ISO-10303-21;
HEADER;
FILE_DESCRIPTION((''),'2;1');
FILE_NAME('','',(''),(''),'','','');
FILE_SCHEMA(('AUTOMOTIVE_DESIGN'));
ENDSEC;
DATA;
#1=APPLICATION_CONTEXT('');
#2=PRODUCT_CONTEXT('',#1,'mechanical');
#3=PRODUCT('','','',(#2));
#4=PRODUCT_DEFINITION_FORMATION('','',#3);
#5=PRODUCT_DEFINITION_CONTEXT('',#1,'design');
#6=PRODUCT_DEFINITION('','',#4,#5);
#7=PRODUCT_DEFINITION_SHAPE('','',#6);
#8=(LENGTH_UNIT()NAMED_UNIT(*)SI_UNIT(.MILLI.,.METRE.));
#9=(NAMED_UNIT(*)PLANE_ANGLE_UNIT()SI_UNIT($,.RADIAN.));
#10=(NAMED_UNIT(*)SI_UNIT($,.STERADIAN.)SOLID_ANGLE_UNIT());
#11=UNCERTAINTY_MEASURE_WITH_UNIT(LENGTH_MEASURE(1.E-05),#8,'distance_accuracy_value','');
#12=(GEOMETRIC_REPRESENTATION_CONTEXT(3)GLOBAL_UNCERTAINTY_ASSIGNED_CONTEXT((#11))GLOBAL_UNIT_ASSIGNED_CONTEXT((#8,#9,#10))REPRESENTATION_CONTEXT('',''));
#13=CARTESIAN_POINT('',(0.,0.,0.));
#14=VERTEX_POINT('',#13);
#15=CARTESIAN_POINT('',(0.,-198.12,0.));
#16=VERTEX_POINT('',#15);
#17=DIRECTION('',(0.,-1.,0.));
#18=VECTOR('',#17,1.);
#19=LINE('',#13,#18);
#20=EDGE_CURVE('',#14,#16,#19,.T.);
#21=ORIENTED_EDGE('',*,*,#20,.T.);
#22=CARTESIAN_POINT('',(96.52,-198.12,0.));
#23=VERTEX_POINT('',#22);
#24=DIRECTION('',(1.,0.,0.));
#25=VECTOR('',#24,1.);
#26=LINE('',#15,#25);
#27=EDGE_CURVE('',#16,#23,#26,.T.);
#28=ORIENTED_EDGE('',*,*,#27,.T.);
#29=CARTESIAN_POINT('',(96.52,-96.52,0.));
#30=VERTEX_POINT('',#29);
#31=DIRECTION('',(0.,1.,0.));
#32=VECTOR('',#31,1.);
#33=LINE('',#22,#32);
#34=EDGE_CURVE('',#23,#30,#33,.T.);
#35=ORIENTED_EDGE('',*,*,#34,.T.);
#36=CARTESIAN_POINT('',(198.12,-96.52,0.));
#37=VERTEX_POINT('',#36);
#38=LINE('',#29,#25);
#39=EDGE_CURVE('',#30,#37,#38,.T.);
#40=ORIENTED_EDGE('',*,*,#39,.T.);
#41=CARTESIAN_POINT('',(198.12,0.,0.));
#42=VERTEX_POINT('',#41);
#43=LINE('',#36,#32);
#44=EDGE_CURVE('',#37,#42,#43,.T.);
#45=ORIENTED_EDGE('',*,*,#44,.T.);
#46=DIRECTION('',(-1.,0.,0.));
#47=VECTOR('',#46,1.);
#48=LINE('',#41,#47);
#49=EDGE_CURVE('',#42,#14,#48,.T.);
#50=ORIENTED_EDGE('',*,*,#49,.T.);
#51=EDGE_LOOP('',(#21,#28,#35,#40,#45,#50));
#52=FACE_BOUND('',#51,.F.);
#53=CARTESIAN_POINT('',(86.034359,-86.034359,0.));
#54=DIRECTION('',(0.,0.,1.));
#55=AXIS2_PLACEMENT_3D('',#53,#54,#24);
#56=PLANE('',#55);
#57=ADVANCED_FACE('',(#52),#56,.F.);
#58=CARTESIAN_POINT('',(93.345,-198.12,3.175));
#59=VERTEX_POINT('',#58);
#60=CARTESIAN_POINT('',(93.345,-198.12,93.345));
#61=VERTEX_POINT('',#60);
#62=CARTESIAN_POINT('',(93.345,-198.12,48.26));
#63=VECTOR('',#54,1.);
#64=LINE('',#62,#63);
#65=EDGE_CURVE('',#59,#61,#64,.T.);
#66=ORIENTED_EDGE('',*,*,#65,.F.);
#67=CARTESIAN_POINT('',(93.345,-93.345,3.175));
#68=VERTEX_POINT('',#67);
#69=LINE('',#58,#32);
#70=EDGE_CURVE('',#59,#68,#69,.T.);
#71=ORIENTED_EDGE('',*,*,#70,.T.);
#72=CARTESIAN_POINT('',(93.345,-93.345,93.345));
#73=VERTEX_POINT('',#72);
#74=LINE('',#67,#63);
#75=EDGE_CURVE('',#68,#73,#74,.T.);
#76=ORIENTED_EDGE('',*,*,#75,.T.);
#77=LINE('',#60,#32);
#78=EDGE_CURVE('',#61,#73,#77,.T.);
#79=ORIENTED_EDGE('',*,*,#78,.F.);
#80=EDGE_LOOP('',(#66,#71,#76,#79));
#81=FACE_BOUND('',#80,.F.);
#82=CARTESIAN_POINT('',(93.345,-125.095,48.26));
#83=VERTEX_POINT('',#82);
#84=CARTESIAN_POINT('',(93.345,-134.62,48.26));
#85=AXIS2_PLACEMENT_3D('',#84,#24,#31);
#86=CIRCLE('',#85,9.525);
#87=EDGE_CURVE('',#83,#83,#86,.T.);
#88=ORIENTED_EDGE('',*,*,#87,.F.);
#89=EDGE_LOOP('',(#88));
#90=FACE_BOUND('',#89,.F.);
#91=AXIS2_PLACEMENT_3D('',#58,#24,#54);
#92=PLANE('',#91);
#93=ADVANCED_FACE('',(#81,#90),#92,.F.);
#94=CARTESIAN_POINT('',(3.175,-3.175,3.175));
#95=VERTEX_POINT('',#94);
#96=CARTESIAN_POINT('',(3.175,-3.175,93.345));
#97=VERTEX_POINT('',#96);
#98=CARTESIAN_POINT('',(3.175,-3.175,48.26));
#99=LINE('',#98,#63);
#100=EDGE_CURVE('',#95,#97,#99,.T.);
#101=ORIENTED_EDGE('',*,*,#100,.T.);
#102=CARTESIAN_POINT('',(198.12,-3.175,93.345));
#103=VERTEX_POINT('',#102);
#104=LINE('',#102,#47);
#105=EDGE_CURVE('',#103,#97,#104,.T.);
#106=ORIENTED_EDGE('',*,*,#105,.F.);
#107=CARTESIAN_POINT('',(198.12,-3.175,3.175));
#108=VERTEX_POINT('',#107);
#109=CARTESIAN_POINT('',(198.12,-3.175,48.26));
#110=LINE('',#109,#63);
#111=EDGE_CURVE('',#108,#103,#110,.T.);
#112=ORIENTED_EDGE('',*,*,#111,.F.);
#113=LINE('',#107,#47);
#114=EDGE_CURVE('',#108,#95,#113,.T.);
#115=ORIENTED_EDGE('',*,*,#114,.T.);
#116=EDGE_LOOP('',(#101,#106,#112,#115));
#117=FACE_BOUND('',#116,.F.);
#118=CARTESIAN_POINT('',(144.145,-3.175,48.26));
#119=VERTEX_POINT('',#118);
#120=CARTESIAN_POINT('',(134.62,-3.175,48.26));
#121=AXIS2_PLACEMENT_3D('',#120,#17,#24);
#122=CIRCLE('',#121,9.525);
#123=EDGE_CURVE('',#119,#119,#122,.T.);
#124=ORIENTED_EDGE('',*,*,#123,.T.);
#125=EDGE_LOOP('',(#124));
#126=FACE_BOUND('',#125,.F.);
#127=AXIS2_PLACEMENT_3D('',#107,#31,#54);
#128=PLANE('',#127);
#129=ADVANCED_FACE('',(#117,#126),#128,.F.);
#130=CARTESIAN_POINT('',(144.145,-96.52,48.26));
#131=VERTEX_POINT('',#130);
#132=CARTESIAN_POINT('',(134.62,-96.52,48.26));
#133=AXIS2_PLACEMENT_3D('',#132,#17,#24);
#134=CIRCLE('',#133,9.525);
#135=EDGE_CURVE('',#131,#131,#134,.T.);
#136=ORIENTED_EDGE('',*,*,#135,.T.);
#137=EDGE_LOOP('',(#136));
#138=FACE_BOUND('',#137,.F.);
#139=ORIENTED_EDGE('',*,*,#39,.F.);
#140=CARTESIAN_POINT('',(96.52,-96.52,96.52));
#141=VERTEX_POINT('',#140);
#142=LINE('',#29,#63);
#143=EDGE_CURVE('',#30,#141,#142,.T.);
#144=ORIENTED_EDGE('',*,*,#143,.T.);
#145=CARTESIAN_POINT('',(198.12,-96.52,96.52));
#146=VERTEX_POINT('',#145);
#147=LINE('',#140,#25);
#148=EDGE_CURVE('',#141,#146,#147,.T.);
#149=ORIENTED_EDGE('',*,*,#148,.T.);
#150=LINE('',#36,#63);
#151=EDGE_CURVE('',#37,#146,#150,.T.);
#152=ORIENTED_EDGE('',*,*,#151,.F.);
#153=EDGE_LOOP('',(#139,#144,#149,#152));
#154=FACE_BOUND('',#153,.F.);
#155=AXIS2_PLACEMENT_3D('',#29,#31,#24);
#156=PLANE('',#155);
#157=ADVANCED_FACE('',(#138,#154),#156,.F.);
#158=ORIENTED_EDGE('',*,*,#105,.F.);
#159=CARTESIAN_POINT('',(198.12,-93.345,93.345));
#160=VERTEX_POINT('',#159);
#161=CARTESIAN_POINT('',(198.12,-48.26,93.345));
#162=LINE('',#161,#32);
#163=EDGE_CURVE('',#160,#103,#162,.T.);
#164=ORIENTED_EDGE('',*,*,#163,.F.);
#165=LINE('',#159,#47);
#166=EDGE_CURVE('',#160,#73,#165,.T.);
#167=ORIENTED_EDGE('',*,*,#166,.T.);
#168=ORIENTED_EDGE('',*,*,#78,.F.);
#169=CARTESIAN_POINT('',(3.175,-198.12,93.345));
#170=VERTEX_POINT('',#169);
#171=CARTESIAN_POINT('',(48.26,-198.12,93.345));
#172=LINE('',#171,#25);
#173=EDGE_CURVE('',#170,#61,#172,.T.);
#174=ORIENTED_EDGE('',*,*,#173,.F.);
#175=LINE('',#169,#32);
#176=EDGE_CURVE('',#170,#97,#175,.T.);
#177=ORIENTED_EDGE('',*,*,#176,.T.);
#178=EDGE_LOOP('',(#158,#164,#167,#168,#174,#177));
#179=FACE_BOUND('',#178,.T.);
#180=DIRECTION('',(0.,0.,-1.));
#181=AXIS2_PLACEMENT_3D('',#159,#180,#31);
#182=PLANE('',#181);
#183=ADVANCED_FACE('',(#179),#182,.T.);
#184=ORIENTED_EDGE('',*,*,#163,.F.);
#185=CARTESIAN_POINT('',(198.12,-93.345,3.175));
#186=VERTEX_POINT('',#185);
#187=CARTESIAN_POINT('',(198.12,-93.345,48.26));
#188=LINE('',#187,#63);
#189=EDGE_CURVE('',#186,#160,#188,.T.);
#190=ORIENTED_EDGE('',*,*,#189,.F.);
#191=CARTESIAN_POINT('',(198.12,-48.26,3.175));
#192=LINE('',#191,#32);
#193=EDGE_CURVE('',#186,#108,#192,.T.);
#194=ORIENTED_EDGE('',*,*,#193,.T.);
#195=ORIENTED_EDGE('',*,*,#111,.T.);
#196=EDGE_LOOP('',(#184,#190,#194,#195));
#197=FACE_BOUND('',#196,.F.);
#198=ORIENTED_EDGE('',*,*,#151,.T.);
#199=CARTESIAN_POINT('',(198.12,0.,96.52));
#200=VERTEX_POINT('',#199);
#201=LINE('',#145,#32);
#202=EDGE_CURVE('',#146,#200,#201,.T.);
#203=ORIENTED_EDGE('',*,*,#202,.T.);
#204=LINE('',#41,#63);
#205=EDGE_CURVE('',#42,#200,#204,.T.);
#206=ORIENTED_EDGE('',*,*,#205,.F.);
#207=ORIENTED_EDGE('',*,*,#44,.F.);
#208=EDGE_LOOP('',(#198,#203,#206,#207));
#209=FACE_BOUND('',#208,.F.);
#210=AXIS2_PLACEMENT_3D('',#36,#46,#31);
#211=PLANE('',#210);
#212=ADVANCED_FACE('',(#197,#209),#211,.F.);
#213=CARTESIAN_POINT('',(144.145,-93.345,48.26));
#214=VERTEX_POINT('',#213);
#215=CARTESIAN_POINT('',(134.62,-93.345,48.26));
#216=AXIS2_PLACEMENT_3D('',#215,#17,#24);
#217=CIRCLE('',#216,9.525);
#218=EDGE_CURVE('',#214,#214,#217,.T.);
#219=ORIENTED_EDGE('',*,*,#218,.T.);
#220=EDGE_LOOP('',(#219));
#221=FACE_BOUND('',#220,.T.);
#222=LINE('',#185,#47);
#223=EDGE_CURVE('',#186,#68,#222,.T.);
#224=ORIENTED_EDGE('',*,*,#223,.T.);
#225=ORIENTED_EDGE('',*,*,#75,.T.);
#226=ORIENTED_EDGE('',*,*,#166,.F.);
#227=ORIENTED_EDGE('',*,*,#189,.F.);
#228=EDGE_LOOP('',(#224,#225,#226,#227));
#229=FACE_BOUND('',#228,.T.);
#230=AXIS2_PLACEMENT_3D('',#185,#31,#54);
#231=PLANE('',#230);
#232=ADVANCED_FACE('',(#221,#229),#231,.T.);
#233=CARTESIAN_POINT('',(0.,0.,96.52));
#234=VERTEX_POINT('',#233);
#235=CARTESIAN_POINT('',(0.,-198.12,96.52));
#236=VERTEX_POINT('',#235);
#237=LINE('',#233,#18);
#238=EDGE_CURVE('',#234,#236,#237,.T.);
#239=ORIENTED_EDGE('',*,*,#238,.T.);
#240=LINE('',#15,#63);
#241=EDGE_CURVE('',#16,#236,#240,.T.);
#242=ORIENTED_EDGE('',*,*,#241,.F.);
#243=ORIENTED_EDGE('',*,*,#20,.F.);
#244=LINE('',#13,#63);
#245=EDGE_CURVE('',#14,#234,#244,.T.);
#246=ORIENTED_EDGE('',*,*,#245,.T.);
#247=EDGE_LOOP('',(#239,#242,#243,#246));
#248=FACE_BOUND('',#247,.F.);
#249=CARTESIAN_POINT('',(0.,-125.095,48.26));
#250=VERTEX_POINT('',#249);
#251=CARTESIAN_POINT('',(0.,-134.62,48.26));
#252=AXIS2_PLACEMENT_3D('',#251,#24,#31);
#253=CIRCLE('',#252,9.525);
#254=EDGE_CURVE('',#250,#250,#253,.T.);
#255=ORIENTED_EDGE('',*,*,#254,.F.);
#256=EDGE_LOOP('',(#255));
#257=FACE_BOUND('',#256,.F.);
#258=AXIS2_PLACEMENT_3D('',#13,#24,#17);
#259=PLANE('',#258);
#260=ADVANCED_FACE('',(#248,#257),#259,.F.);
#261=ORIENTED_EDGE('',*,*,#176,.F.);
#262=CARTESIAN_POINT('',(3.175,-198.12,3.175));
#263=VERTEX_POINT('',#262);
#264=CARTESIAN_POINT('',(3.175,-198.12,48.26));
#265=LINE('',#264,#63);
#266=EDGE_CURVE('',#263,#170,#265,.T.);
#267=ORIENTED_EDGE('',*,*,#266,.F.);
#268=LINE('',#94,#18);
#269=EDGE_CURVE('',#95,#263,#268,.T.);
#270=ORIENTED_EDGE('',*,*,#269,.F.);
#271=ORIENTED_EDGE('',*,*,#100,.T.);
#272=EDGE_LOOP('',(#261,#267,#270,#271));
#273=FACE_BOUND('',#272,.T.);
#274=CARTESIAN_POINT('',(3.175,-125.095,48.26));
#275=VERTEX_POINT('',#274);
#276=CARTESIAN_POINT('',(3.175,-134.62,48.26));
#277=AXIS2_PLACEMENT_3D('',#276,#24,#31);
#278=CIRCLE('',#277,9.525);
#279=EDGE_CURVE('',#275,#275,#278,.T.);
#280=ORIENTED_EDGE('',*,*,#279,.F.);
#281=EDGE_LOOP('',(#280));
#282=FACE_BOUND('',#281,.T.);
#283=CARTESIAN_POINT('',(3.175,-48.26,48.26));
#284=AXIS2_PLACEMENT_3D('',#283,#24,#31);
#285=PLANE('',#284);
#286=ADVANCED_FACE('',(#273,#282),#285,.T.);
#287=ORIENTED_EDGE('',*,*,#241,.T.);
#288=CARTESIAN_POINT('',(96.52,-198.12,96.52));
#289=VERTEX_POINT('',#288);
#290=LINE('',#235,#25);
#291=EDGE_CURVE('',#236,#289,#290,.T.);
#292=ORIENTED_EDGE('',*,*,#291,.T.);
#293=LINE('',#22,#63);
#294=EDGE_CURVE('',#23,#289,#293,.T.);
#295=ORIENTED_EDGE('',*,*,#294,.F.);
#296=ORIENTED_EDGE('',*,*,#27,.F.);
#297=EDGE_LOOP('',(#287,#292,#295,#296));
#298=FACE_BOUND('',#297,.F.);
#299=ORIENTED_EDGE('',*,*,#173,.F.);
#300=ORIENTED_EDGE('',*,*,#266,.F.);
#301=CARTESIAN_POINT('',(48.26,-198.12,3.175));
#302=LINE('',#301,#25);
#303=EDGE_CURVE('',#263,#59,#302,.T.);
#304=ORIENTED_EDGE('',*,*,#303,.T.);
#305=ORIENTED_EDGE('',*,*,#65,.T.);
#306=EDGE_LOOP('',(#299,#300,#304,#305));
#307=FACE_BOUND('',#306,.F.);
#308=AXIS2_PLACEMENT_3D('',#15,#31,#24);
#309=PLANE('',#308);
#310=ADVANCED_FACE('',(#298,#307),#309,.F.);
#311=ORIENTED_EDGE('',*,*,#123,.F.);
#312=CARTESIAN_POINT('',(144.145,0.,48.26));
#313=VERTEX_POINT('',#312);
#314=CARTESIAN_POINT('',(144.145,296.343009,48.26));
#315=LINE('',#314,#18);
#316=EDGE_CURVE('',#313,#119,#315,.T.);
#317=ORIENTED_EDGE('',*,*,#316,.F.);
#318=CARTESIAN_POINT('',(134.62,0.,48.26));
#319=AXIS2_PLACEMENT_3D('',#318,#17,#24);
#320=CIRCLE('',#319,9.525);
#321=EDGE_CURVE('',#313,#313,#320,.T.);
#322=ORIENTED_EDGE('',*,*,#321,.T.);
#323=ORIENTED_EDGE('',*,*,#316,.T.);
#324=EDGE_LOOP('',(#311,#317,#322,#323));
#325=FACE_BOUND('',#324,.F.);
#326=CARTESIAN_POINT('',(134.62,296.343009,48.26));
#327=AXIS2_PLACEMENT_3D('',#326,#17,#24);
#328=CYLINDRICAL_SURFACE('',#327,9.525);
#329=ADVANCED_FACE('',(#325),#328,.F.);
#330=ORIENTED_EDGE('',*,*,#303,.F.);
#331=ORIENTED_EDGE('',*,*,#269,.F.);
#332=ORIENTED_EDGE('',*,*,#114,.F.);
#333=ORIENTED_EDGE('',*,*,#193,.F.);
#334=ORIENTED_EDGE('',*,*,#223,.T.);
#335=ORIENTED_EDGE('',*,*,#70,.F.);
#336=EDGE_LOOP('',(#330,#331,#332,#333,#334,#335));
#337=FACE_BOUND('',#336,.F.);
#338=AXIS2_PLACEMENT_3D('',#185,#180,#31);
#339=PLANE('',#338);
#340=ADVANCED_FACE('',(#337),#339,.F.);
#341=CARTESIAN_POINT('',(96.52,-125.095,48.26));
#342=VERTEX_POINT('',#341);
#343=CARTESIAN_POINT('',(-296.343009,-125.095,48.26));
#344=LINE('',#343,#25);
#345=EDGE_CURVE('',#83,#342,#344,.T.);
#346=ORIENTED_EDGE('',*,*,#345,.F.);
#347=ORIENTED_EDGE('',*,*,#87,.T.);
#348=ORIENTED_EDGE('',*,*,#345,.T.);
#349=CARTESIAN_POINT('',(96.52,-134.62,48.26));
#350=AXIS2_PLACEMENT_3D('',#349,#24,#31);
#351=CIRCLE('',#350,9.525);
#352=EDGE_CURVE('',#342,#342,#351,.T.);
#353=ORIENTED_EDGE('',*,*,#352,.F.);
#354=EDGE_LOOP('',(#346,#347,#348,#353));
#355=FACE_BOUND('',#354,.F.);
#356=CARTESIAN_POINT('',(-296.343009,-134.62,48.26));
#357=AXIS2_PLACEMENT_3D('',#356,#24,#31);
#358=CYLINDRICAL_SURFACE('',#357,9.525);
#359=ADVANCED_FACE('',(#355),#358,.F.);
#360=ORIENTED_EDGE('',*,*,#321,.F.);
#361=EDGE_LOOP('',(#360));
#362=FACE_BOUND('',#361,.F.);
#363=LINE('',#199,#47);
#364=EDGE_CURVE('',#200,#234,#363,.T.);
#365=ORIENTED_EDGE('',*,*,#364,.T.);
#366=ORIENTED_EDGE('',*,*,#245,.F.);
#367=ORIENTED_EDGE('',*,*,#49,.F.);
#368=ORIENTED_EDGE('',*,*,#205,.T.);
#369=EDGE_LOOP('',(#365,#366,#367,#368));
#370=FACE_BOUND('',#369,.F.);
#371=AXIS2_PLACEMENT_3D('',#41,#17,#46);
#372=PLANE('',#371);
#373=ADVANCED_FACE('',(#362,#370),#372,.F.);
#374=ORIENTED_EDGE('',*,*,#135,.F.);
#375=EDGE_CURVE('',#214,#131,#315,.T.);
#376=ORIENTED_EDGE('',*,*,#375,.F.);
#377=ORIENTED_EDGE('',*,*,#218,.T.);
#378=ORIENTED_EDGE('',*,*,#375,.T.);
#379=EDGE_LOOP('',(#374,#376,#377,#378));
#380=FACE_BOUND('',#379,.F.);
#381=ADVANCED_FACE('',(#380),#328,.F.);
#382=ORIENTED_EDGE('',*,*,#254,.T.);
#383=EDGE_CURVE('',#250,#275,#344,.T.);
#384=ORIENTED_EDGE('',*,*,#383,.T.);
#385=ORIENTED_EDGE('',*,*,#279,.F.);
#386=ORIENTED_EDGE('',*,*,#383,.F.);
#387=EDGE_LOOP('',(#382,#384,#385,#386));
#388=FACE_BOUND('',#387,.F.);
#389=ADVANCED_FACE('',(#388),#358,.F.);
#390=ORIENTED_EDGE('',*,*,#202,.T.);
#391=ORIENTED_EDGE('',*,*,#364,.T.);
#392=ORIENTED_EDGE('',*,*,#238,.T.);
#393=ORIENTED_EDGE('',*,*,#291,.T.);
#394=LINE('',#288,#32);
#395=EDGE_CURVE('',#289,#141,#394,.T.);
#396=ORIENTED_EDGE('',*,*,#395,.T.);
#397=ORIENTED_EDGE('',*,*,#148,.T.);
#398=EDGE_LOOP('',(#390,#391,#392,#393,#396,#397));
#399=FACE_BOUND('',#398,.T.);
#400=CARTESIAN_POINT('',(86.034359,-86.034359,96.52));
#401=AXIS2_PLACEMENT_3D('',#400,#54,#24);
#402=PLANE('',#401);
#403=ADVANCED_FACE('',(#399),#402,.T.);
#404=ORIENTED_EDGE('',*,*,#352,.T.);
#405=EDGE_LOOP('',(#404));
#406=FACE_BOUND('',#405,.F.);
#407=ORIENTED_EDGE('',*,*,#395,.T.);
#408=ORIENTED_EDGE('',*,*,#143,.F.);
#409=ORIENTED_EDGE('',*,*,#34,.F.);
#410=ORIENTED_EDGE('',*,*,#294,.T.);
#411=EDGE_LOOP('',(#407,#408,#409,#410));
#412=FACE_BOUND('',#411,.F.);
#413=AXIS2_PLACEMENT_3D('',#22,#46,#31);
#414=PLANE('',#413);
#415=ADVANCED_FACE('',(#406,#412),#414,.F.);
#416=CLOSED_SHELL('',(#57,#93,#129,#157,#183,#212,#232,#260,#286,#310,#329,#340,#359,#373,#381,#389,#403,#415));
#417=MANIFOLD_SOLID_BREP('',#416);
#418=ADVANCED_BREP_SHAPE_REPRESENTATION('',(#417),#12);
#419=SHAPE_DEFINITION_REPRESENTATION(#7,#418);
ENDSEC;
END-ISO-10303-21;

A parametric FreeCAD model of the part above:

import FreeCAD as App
import Part
import Sketcher

V = App.Vector
Q = App.Units.Quantity

doc = App.newDocument("Part")
body = doc.addObject("PartDesign::Body", "Body")

sketch1 = body.newObject("Sketcher::SketchObject", "Sketch")
sketch1.AttachmentSupport = (doc.getObject("XY_Plane"), [""])
sketch1.MapMode = "FlatFace"
sketch1.addGeometry(Part.LineSegment(V(198, 0, 0), V(0, 0, 0)), False)
sketch1.addGeometry(Part.LineSegment(V(0, 0, 0), V(0, -198, 0)), False)
sketch1.addGeometry(Part.LineSegment(V(0, -198, 0), V(97, -198, 0)), False)
sketch1.addGeometry(Part.LineSegment(V(97, -198, 0), V(97, -97, 0)), False)
sketch1.addGeometry(Part.LineSegment(V(97, -97, 0), V(198, -97, 0)), False)
sketch1.addGeometry(Part.LineSegment(V(198, -97, 0), V(198, 0, 0)), False)
sketch1.addConstraint(Sketcher.Constraint("Coincident", 0, 2, 1, 1))
sketch1.addConstraint(Sketcher.Constraint("Coincident", 1, 2, 2, 1))
sketch1.addConstraint(Sketcher.Constraint("Coincident", 2, 2, 3, 1))
sketch1.addConstraint(Sketcher.Constraint("Coincident", 3, 2, 4, 1))
sketch1.addConstraint(Sketcher.Constraint("Coincident", 4, 2, 5, 1))
sketch1.addConstraint(Sketcher.Constraint("Coincident", 5, 2, 0, 1))
sketch1.addConstraint(Sketcher.Constraint("Horizontal", 0))
sketch1.addConstraint(Sketcher.Constraint("Vertical", 1))
sketch1.addConstraint(Sketcher.Constraint("Horizontal", 2))
sketch1.addConstraint(Sketcher.Constraint("Vertical", 3))
sketch1.addConstraint(Sketcher.Constraint("Horizontal", 4))
sketch1.addConstraint(Sketcher.Constraint("Vertical", 5))
sketch1.addConstraint(Sketcher.Constraint("Coincident", 0, 2, -1, 1))
sketch1.addConstraint(Sketcher.Constraint("Equal", 0, 1))
sketch1.addConstraint(Sketcher.Constraint("Equal", 4, 3))
sketch1.addConstraint(Sketcher.Constraint("DistanceX", 4, 1, 4, 2, Q("4 in")))
sketch1.addConstraint(Sketcher.Constraint("DistanceX", 0, 2, 0, 1, Q("7.8 in")))
pad1 = body.newObject("PartDesign::Pad", "Pad")
pad1.Profile = sketch1
pad1.Length = Q("3.8 in")

sketch2 = body.newObject("Sketcher::SketchObject", "Sketch001")
sketch2.AttachmentSupport = (doc.getObject("XZ_Plane"), [""])
sketch2.MapMode = "FlatFace"
sketch2.AttachmentOffset = App.Placement(V(0, 0, 7.8 * 25.4), App.Rotation())
sketch2.addGeometry(Part.LineSegment(V(3, 93, 0), V(3, 3, 0)), False)
sketch2.addGeometry(Part.LineSegment(V(3, 3, 0), V(93, 3, 0)), False)
sketch2.addGeometry(Part.LineSegment(V(93, 3, 0), V(93, 93, 0)), False)
sketch2.addGeometry(Part.LineSegment(V(93, 93, 0), V(3, 93, 0)), False)
sketch2.addConstraint(Sketcher.Constraint("Coincident", 0, 2, 1, 1))
sketch2.addConstraint(Sketcher.Constraint("Coincident", 1, 2, 2, 1))
sketch2.addConstraint(Sketcher.Constraint("Coincident", 2, 2, 3, 1))
sketch2.addConstraint(Sketcher.Constraint("Coincident", 3, 2, 0, 1))
sketch2.addConstraint(Sketcher.Constraint("Vertical", 0))
sketch2.addConstraint(Sketcher.Constraint("Horizontal", 1))
sketch2.addConstraint(Sketcher.Constraint("Vertical", 2))
sketch2.addConstraint(Sketcher.Constraint("Horizontal", 3))
sketch2.addConstraint(Sketcher.Constraint("Equal", 3, 0))
sketch2.addConstraint(Sketcher.Constraint("DistanceX", 1, 1, 1, 2, Q("3.55 in")))
sketch2.addConstraint(Sketcher.Constraint("DistanceX", -1, 1, 0, 2, Q("0.125 in")))
sketch2.addConstraint(Sketcher.Constraint("DistanceY", -1, 1, 0, 2, Q("0.125 in")))
pocket1 = body.newObject("PartDesign::Pocket", "Pocket")
pocket1.Profile = sketch2
pocket1.Length = Q("4.2 in")

sketch3 = body.newObject("Sketcher::SketchObject", "Sketch002")
sketch3.AttachmentSupport = (doc.getObject("YZ_Plane"), [""])
sketch3.MapMode = "FlatFace"
sketch3.AttachmentOffset = App.Placement(V(0, 0, 7.8 * 25.4), App.Rotation())
sketch3.addGeometry(Part.LineSegment(V(-93, 93, 0), V(-93, 3, 0)), False)
sketch3.addGeometry(Part.LineSegment(V(-93, 3, 0), V(-3, 3, 0)), False)
sketch3.addGeometry(Part.LineSegment(V(-3, 3, 0), V(-3, 93, 0)), False)
sketch3.addGeometry(Part.LineSegment(V(-3, 93, 0), V(-93, 93, 0)), False)
sketch3.addConstraint(Sketcher.Constraint("Coincident", 0, 2, 1, 1))
sketch3.addConstraint(Sketcher.Constraint("Coincident", 1, 2, 2, 1))
sketch3.addConstraint(Sketcher.Constraint("Coincident", 2, 2, 3, 1))
sketch3.addConstraint(Sketcher.Constraint("Coincident", 3, 2, 0, 1))
sketch3.addConstraint(Sketcher.Constraint("Vertical", 0))
sketch3.addConstraint(Sketcher.Constraint("Horizontal", 1))
sketch3.addConstraint(Sketcher.Constraint("Vertical", 2))
sketch3.addConstraint(Sketcher.Constraint("Horizontal", 3))
sketch3.addConstraint(Sketcher.Constraint("Equal", 3, 0))
sketch3.addConstraint(Sketcher.Constraint("DistanceX", 1, 1, 1, 2, Q("3.55 in")))
sketch3.addConstraint(Sketcher.Constraint("DistanceX", 0, 2, -1, 1, Q("3.675 in")))
sketch3.addConstraint(Sketcher.Constraint("DistanceY", -1, 1, 0, 2, Q("0.125 in")))
pocket2 = body.newObject("PartDesign::Pocket", "Pocket001")
pocket2.Profile = sketch3
pocket2.Length = Q("7.675 in")

sketch4 = body.newObject("Sketcher::SketchObject", "Sketch003")
sketch4.AttachmentSupport = (doc.getObject("XZ_Plane"), [""])
sketch4.MapMode = "FlatFace"
sketch4.addGeometry(Part.Circle(V(135, 48, 0), V(0, 0, 1), 10), False)
sketch4.addConstraint(Sketcher.Constraint("Diameter", 0, Q("0.75 in")))
sketch4.addConstraint(Sketcher.Constraint("DistanceX", -1, 1, 0, 3, Q("5.3 in")))
sketch4.addConstraint(Sketcher.Constraint("DistanceY", -1, 1, 0, 3, Q("1.9 in")))
doc.recompute()
hole = body.newObject("PartDesign::Hole", "Hole")
hole.Profile = sketch4
hole.ThreadType = "None"
hole.Diameter = Q("0.75 in")
hole.DepthType = "ThroughAll"
hole.Reversed = True

sketch5 = body.newObject("Sketcher::SketchObject", "Sketch004")
sketch5.AttachmentSupport = (doc.getObject("YZ_Plane"), [""])
sketch5.MapMode = "FlatFace"
sketch5.addGeometry(Part.Circle(V(-135, 48, 0), V(0, 0, 1), 10), False)
sketch5.addConstraint(Sketcher.Constraint("Diameter", 0, Q("0.75 in")))
sketch5.addConstraint(Sketcher.Constraint("DistanceX", 0, 3, -1, 1, Q("5.3 in")))
sketch5.addConstraint(Sketcher.Constraint("DistanceY", -1, 1, 0, 3, Q("1.9 in")))
doc.recompute()
hole2 = body.newObject("PartDesign::Hole", "Hole001")
hole2.Profile = sketch5
hole2.ThreadType = "None"
hole2.Diameter = Q("0.75 in")
hole2.DepthType = "ThroughAll"
hole2.Reversed = True

doc.recompute()
